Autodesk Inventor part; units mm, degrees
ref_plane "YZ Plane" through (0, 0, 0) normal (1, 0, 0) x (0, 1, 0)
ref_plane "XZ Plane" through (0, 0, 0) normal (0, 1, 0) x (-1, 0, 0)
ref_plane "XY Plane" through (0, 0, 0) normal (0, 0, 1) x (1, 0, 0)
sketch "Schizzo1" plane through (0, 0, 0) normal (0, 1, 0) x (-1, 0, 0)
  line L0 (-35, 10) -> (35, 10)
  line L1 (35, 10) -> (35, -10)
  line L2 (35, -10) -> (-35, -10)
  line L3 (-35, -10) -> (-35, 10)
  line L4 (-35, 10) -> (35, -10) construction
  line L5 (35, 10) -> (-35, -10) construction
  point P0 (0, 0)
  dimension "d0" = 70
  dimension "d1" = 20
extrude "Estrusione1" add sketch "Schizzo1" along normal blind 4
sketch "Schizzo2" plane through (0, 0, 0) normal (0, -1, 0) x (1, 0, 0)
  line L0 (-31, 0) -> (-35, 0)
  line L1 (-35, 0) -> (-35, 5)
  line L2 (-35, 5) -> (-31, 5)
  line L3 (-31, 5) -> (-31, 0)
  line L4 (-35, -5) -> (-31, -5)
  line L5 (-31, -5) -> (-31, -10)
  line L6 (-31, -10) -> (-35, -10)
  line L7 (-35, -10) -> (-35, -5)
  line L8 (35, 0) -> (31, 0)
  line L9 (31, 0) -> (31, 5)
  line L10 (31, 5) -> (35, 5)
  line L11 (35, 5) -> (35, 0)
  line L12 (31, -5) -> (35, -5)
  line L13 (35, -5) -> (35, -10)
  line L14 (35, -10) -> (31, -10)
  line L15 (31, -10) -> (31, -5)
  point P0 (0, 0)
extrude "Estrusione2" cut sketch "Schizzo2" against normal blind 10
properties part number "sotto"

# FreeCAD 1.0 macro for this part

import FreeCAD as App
import Part
import Sketcher

V = App.Vector

doc = App.newDocument("Part")
body = doc.addObject("PartDesign::Body", "Body")

# Sketch on XZ plane
sketch1 = body.newObject("Sketcher::SketchObject", "Sketch")
sketch1.AttachmentSupport = (doc.getObject("XZ_Plane"), [""])
sketch1.MapMode = "FlatFace"
sketch1.addGeometry([
    Part.LineSegment(V(-35, 10, 0), V(35, 10, 0)),
    Part.LineSegment(V(35, 10, 0), V(35, -10, 0)),
    Part.LineSegment(V(35, -10, 0), V(-35, -10, 0)),
    Part.LineSegment(V(-35, -10, 0), V(-35, 10, 0)),
], False)
sketch1.addConstraint([
    Sketcher.Constraint("Coincident", 0, 2, 1, 1),
    Sketcher.Constraint("Coincident", 1, 2, 2, 1),
    Sketcher.Constraint("Coincident", 2, 2, 3, 1),
    Sketcher.Constraint("Coincident", 3, 2, 0, 1),
    Sketcher.Constraint("Horizontal", 0),
    Sketcher.Constraint("Vertical", 1),
    Sketcher.Constraint("Horizontal", 2),
    Sketcher.Constraint("Vertical", 3),
    Sketcher.Constraint("Symmetric", 0, 2, 2, 2, -1, 1),
    Sketcher.Constraint("DistanceX", 0, 1, 0, 2, 70.0),
    Sketcher.Constraint("DistanceY", 1, 2, 1, 1, 20.0),
])
pad1 = body.newObject("PartDesign::Pad", "Pad")
pad1.Profile = sketch1
pad1.Length = 4
pad1.Reversed = True

# Sketch on XZ plane
sketch2 = body.newObject("Sketcher::SketchObject", "Sketch001")
sketch2.AttachmentSupport = (doc.getObject("XZ_Plane"), [""])
sketch2.MapMode = "FlatFace"
sketch2.addGeometry([
    Part.LineSegment(V(-35, 0, 0), V(-31, 0, 0)),  # 0
    Part.LineSegment(V(-31, 0, 0), V(-31, 5, 0)),  # 1
    Part.LineSegment(V(-31, 5, 0), V(-35, 5, 0)),  # 2
    Part.LineSegment(V(-35, 5, 0), V(-35, 0, 0)),  # 3
    Part.LineSegment(V(-31, -5, 0), V(-35, -5, 0)),  # 4
    Part.LineSegment(V(-35, -5, 0), V(-35, -10, 0)),  # 5
    Part.LineSegment(V(-35, -10, 0), V(-31, -10, 0)),  # 6
    Part.LineSegment(V(-31, -10, 0), V(-31, -5, 0)),  # 7
    Part.LineSegment(V(31, 0, 0), V(35, 0, 0)),  # 8
    Part.LineSegment(V(35, 0, 0), V(35, 5, 0)),  # 9
    Part.LineSegment(V(35, 5, 0), V(31, 5, 0)),  # 10
    Part.LineSegment(V(31, 5, 0), V(31, 0, 0)),  # 11
    Part.LineSegment(V(35, -5, 0), V(31, -5, 0)),  # 12
    Part.LineSegment(V(31, -5, 0), V(31, -10, 0)),  # 13
    Part.LineSegment(V(31, -10, 0), V(35, -10, 0)),  # 14
    Part.LineSegment(V(35, -10, 0), V(35, -5, 0)),  # 15
], False)
sketch2.addConstraint([
    Sketcher.Constraint("Coincident", 0, 2, 1, 1),
    Sketcher.Constraint("Coincident", 1, 2, 2, 1),
    Sketcher.Constraint("Coincident", 2, 2, 3, 1),
    Sketcher.Constraint("Coincident", 3, 2, 0, 1),
    Sketcher.Constraint("Coincident", 4, 2, 5, 1),
    Sketcher.Constraint("Coincident", 5, 2, 6, 1),
    Sketcher.Constraint("Coincident", 6, 2, 7, 1),
    Sketcher.Constraint("Coincident", 7, 2, 4, 1),
    Sketcher.Constraint("Coincident", 8, 2, 9, 1),
    Sketcher.Constraint("Coincident", 9, 2, 10, 1),
    Sketcher.Constraint("Coincident", 10, 2, 11, 1),
    Sketcher.Constraint("Coincident", 11, 2, 8, 1),
    Sketcher.Constraint("Coincident", 12, 2, 13, 1),
    Sketcher.Constraint("Coincident", 13, 2, 14, 1),
    Sketcher.Constraint("Coincident", 14, 2, 15, 1),
    Sketcher.Constraint("Coincident", 15, 2, 12, 1),
    Sketcher.Constraint("Horizontal", 0),
    Sketcher.Constraint("Vertical", 1),
    Sketcher.Constraint("Horizontal", 2),
    Sketcher.Constraint("Vertical", 3),
    Sketcher.Constraint("Horizontal", 4),
    Sketcher.Constraint("Vertical", 5),
    Sketcher.Constraint("Horizontal", 6),
    Sketcher.Constraint("Vertical", 7),
    Sketcher.Constraint("Horizontal", 8),
    Sketcher.Constraint("Vertical", 9),
    Sketcher.Constraint("Horizontal", 10),
    Sketcher.Constraint("Vertical", 11),
    Sketcher.Constraint("Horizontal", 12),
    Sketcher.Constraint("Vertical", 13),
    Sketcher.Constraint("Horizontal", 14),
    Sketcher.Constraint("Vertical", 15),
    Sketcher.Constraint("Symmetric", 3, 2, 8, 2, -1, 1),
    Sketcher.Constraint("Symmetric", 4, 2, 9, 2, -1, 1),
    Sketcher.Constraint("Symmetric", 1, 2, 12, 2, -1, 1),
    Sketcher.Constraint("Symmetric", 1, 2, 10, 2, -2),
    Sketcher.Constraint("Symmetric", 6, 2, 13, 2, -2),
    Sketcher.Constraint("PointOnObject", 0, 2, -1),
    Sketcher.Constraint("Vertical", 9, 2, 14, 2),
    Sketcher.Constraint("Equal", 3, 5),
    Sketcher.Constraint("DistanceX", 0, 1, 0, 2, 4.0),
    Sketcher.Constraint("DistanceY", 1, 1, 1, 2, 5.0),
    Sketcher.Constraint("DistanceX", 0, 2, -1, 1, 31.0),
])
pocket1 = body.newObject("PartDesign::Pocket", "Pocket")
pocket1.Profile = sketch2
pocket1.Length = 10

doc.recompute()
